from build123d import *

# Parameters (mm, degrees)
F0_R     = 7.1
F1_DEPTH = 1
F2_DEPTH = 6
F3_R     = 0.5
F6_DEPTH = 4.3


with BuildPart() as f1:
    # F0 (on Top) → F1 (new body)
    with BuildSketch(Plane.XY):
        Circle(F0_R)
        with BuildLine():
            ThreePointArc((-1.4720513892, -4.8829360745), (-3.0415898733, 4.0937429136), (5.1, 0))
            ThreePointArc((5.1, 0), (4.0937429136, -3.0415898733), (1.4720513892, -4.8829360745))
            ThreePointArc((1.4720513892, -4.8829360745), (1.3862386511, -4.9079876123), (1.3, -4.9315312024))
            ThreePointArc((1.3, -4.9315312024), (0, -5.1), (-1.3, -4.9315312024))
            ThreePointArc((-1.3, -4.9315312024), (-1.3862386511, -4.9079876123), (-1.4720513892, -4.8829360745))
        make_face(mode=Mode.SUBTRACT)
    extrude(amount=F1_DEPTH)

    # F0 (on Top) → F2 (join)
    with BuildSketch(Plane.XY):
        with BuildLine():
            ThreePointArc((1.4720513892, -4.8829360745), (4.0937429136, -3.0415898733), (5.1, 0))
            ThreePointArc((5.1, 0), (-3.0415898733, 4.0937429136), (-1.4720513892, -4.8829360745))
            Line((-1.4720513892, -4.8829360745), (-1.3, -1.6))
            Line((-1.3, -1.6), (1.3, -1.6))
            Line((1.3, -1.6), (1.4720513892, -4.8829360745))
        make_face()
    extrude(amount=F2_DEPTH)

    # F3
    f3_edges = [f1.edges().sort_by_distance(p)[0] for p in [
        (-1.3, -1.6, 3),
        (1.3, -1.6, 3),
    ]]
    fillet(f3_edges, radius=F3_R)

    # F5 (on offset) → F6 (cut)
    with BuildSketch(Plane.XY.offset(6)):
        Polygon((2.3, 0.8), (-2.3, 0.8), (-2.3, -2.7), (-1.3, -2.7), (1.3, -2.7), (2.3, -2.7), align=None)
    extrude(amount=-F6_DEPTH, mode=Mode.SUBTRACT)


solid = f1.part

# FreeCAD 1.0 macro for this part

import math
import FreeCAD as App
import Part
import Sketcher

V = App.Vector
Q = App.Units.Quantity


def edges_at(feature, points):
    """Names of the edges that pass closest to the given points."""
    edges = feature.Shape.Edges
    near = lambda p: min(range(len(edges)), key=lambda i: edges[i].distToShape(Part.Vertex(*p))[0])
    return sorted({f"Edge{near(p) + 1}" for p in points})


def add_polygon(sketch, points):
    """Adds a closed chain of lines whose ends are joined by coincident constraints."""
    first, n = sketch.GeometryCount, len(points)
    for a, b in zip(points, points[1:] + points[:1]):
        sketch.addGeometry(Part.LineSegment(App.Vector(*a, 0), App.Vector(*b, 0)), False)
    for i in range(n):
        sketch.addConstraint(Sketcher.Constraint("Coincident", first + i, 2, first + (i + 1) % n, 1))

doc = App.newDocument("Part")
body = doc.addObject("PartDesign::Body", "Body")

# Sketch on XY plane
sketch1 = body.newObject("Sketcher::SketchObject", "Sketch")
sketch1.AttachmentSupport = (doc.getObject("XY_Plane"), [""])
sketch1.MapMode = "FlatFace"
sketch1.addGeometry(Part.Circle(V(0, 0, 0), V(0, 0, 1), 7.1), False)
sketch1.addGeometry(Part.ArcOfCircle(Part.Circle(V(0, 0, 0), V(0, 0, 1), 5.1), math.radians(-106.78), math.radians(-104.77)), False)
sketch1.addGeometry(Part.ArcOfCircle(Part.Circle(V(0, 0, 0), V(0, 0, 1), 5.1), math.radians(0), math.radians(253)), False)
sketch1.addGeometry(Part.ArcOfCircle(Part.Circle(V(0, 0, 0), V(0, 0, 1), 5.1), math.radians(-73), math.radians(0)), False)
sketch1.addGeometry(Part.ArcOfCircle(Part.Circle(V(0, 0, 0), V(0, 0, 1), 5.1), math.radians(-75.23), math.radians(-73.22)), False)
sketch1.addGeometry(Part.ArcOfCircle(Part.Circle(V(0, 0, 0), V(0, 0, 1), 5.1), math.radians(-105), math.radians(-75)), False)
sketch1.addConstraint(Sketcher.Constraint("Tangent", 1, 1, 2, 2))
sketch1.addConstraint(Sketcher.Constraint("Tangent", 2, 1, 3, 2))
sketch1.addConstraint(Sketcher.Constraint("Tangent", 3, 1, 4, 2))
sketch1.addConstraint(Sketcher.Constraint("Tangent", 4, 1, 5, 2))
sketch1.addConstraint(Sketcher.Constraint("Tangent", 5, 1, 1, 2))
sketch1.addConstraint(Sketcher.Constraint("Coincident", 0, 3, -1, 1))
sketch1.addConstraint(Sketcher.Constraint("Coincident", 1, 3, -1, 1))
sketch1.addConstraint(Sketcher.Constraint("Coincident", 3, 3, -1, 1))
sketch1.addConstraint(Sketcher.Constraint("PointOnObject", 2, 1, -1))
sketch1.addConstraint(Sketcher.Constraint("Horizontal", 1, 1, 3, 1))
sketch1.addConstraint(Sketcher.Constraint("Horizontal", 4, 1, 5, 1))
sketch1.addConstraint(Sketcher.Constraint("Diameter", 0, 14.2))
sketch1.addConstraint(Sketcher.Constraint("Radius", 1, 5.1))
sketch1.addConstraint(Sketcher.Constraint("DistanceX", -1, 1, 4, 1, 1.3))
sketch1.addConstraint(Sketcher.Constraint("DistanceX", 1, 1, -1, 1, 1.472051))
pad1 = body.newObject("PartDesign::Pad", "Pad")
pad1.Profile = sketch1
pad1.Length = 1

# Sketch on XY plane
sketch2 = body.newObject("Sketcher::SketchObject", "Sketch001")
sketch2.AttachmentSupport = (doc.getObject("XY_Plane"), [""])
sketch2.MapMode = "FlatFace"
sketch2.addGeometry(Part.ArcOfCircle(Part.Circle(V(0, 0, 0), V(0, 0, 1), 5.1), math.radians(-73), math.radians(0)), False)
sketch2.addGeometry(Part.ArcOfCircle(Part.Circle(V(0, 0, 0), V(0, 0, 1), 5.1), math.radians(0), math.radians(253)), False)
sketch2.addGeometry(Part.LineSegment(V(-1.5, -4.9, 0), V(-1.3, -1.6, 0)), False)
sketch2.addGeometry(Part.LineSegment(V(-1.3, -1.6, 0), V(1.3, -1.6, 0)), False)
sketch2.addGeometry(Part.LineSegment(V(1.3, -1.6, 0), V(1.5, -4.9, 0)), False)
sketch2.addConstraint(Sketcher.Constraint("Tangent", 0, 2, 1, 1))
sketch2.addConstraint(Sketcher.Constraint("Coincident", 1, 2, 2, 1))
sketch2.addConstraint(Sketcher.Constraint("Coincident", 2, 2, 3, 1))
sketch2.addConstraint(Sketcher.Constraint("Coincident", 3, 2, 4, 1))
sketch2.addConstraint(Sketcher.Constraint("Coincident", 4, 2, 0, 1))
sketch2.addConstraint(Sketcher.Constraint("Horizontal", 3))
sketch2.addConstraint(Sketcher.Constraint("Coincident", 0, 3, -1, 1))
sketch2.addConstraint(Sketcher.Constraint("Equal", 0, 1))
sketch2.addConstraint(Sketcher.Constraint("PointOnObject", 0, 2, -1))
sketch2.addConstraint(Sketcher.Constraint("Horizontal", 1, 2, 4, 2))
sketch2.addConstraint(Sketcher.Constraint("Equal", 2, 4))
sketch2.addConstraint(Sketcher.Constraint("Radius", 0, 5.1))
sketch2.addConstraint(Sketcher.Constraint("Angle", 2, Q("87 deg")))
sketch2.addConstraint(Sketcher.Constraint("DistanceX", 3, 1, 3, 2, 2.6))
sketch2.addConstraint(Sketcher.Constraint("DistanceY", 2, 2, -1, 1, 1.6))
pad2 = body.newObject("PartDesign::Pad", "Pad001")
pad2.Profile = sketch2
pad2.Length = 6
doc.recompute()

fillet = body.newObject("PartDesign::Fillet", "Fillet")
fillet.Base = (pad2, edges_at(pad2, [(-1.3, -1.6, 3), (1.3, -1.6, 3)]))
fillet.Radius = 0.5

# Sketch on XY plane
sketch3 = body.newObject("Sketcher::SketchObject", "Sketch002")
sketch3.AttachmentSupport = (doc.getObject("XY_Plane"), [""])
sketch3.MapMode = "FlatFace"
sketch3.AttachmentOffset = App.Placement(V(0, 0, 6), App.Rotation())
add_polygon(sketch3, [(2.3, 0.8), (-2.3, 0.8), (-2.3, -2.7), (2.3, -2.7)])  # lines 0-3
sketch3.addConstraint(Sketcher.Constraint("Horizontal", 0))
sketch3.addConstraint(Sketcher.Constraint("Vertical", 1))
sketch3.addConstraint(Sketcher.Constraint("Horizontal", 2))
sketch3.addConstraint(Sketcher.Constraint("Vertical", 3))
sketch3.addConstraint(Sketcher.Constraint("DistanceX", 0, 2, 0, 1, 4.6))
sketch3.addConstraint(Sketcher.Constraint("DistanceY", 1, 2, 1, 1, 3.5))
sketch3.addConstraint(Sketcher.Constraint("DistanceX", 0, 2, -1, 1, 2.3))
sketch3.addConstraint(Sketcher.Constraint("DistanceY", -1, 1, 0, 2, 0.8))
pocket1 = body.newObject("PartDesign::Pocket", "Pocket")
pocket1.Profile = sketch3
pocket1.Length = 4.3

doc.recompute()
